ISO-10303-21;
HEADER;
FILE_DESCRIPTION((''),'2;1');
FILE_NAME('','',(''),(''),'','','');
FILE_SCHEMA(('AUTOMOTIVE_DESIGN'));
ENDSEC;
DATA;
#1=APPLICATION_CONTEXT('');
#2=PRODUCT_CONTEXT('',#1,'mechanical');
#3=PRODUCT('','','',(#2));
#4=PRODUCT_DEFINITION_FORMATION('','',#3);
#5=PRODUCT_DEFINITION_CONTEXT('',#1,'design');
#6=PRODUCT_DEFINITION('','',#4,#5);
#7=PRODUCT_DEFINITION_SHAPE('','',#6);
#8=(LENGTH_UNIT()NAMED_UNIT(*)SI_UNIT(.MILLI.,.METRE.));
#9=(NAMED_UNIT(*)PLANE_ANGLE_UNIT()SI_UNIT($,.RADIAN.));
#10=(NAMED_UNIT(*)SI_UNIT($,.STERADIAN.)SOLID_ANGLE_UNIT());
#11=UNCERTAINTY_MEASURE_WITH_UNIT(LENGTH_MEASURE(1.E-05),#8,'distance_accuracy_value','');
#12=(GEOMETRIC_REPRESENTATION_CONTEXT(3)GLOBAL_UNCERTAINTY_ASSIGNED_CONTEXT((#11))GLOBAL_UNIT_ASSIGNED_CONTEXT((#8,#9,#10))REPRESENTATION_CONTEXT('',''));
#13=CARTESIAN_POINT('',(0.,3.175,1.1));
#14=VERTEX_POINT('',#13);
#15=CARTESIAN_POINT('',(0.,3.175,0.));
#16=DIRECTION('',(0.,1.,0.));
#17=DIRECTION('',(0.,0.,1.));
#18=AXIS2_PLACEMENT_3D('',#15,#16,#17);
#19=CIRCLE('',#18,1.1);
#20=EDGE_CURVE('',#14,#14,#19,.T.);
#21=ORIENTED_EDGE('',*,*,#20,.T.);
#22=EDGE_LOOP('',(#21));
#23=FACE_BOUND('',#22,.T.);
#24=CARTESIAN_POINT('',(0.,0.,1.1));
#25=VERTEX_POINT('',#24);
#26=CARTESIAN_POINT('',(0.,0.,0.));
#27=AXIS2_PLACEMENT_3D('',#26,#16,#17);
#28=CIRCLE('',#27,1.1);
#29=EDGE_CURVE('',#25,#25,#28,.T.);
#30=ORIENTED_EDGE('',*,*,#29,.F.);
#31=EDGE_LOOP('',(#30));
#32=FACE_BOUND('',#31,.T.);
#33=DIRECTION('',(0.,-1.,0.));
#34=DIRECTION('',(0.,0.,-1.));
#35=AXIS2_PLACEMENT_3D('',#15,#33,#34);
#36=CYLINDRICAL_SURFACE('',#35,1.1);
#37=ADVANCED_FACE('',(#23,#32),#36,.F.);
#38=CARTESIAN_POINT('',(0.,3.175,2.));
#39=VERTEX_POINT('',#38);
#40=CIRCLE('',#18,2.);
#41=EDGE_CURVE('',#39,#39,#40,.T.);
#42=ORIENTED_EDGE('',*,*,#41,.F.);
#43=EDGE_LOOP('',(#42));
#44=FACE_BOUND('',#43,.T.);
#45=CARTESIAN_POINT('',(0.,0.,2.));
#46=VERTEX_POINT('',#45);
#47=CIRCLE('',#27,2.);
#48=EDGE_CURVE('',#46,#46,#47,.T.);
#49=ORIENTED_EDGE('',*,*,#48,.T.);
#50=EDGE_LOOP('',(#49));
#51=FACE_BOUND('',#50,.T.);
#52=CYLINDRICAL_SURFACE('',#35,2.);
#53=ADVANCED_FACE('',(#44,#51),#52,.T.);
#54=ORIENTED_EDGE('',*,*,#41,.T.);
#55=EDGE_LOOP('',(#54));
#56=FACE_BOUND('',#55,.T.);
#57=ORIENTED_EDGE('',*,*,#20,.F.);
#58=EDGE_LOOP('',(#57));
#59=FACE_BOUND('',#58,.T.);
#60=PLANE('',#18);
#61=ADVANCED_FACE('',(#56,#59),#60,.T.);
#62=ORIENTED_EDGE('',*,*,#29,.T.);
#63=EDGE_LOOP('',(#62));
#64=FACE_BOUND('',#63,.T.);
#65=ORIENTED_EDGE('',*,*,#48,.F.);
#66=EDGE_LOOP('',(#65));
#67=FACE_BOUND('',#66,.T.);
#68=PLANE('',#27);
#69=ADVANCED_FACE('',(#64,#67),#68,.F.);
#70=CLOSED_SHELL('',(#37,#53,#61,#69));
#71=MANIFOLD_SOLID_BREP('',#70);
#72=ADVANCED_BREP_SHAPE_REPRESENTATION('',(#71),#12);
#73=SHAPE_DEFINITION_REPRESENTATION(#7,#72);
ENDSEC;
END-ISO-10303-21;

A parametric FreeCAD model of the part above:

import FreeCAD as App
import Part
import Sketcher
from FreeCAD import Vector
Q = App.Units.Quantity

doc = App.newDocument("Part")
body = doc.addObject("PartDesign::Body", "Body")

sketch1 = body.newObject("Sketcher::SketchObject", "Sketch")
sketch1.AttachmentSupport = (doc.getObject("XZ_Plane"), [""])
sketch1.MapMode = "FlatFace"
sketch1.addGeometry(Part.Circle(Vector(0, 0, 0), Vector(0, 0, 1), 2), False)
sketch1.addGeometry(Part.Circle(Vector(0, 0, 0), Vector(0, 0, 1), 1.1), False)
sketch1.addConstraint(Sketcher.Constraint("Coincident", 0, 3, -1, 1))
sketch1.addConstraint(Sketcher.Constraint("Coincident", 1, 3, -1, 1))
sketch1.addConstraint(Sketcher.Constraint("Diameter", 0, Q("4 mm")))
sketch1.addConstraint(Sketcher.Constraint("Diameter", 1, Q("2.2 mm")))
pad1 = body.newObject("PartDesign::Pad", "Pad")
pad1.Profile = sketch1
pad1.Length = 3.175
pad1.Reversed = True

doc.recompute()
